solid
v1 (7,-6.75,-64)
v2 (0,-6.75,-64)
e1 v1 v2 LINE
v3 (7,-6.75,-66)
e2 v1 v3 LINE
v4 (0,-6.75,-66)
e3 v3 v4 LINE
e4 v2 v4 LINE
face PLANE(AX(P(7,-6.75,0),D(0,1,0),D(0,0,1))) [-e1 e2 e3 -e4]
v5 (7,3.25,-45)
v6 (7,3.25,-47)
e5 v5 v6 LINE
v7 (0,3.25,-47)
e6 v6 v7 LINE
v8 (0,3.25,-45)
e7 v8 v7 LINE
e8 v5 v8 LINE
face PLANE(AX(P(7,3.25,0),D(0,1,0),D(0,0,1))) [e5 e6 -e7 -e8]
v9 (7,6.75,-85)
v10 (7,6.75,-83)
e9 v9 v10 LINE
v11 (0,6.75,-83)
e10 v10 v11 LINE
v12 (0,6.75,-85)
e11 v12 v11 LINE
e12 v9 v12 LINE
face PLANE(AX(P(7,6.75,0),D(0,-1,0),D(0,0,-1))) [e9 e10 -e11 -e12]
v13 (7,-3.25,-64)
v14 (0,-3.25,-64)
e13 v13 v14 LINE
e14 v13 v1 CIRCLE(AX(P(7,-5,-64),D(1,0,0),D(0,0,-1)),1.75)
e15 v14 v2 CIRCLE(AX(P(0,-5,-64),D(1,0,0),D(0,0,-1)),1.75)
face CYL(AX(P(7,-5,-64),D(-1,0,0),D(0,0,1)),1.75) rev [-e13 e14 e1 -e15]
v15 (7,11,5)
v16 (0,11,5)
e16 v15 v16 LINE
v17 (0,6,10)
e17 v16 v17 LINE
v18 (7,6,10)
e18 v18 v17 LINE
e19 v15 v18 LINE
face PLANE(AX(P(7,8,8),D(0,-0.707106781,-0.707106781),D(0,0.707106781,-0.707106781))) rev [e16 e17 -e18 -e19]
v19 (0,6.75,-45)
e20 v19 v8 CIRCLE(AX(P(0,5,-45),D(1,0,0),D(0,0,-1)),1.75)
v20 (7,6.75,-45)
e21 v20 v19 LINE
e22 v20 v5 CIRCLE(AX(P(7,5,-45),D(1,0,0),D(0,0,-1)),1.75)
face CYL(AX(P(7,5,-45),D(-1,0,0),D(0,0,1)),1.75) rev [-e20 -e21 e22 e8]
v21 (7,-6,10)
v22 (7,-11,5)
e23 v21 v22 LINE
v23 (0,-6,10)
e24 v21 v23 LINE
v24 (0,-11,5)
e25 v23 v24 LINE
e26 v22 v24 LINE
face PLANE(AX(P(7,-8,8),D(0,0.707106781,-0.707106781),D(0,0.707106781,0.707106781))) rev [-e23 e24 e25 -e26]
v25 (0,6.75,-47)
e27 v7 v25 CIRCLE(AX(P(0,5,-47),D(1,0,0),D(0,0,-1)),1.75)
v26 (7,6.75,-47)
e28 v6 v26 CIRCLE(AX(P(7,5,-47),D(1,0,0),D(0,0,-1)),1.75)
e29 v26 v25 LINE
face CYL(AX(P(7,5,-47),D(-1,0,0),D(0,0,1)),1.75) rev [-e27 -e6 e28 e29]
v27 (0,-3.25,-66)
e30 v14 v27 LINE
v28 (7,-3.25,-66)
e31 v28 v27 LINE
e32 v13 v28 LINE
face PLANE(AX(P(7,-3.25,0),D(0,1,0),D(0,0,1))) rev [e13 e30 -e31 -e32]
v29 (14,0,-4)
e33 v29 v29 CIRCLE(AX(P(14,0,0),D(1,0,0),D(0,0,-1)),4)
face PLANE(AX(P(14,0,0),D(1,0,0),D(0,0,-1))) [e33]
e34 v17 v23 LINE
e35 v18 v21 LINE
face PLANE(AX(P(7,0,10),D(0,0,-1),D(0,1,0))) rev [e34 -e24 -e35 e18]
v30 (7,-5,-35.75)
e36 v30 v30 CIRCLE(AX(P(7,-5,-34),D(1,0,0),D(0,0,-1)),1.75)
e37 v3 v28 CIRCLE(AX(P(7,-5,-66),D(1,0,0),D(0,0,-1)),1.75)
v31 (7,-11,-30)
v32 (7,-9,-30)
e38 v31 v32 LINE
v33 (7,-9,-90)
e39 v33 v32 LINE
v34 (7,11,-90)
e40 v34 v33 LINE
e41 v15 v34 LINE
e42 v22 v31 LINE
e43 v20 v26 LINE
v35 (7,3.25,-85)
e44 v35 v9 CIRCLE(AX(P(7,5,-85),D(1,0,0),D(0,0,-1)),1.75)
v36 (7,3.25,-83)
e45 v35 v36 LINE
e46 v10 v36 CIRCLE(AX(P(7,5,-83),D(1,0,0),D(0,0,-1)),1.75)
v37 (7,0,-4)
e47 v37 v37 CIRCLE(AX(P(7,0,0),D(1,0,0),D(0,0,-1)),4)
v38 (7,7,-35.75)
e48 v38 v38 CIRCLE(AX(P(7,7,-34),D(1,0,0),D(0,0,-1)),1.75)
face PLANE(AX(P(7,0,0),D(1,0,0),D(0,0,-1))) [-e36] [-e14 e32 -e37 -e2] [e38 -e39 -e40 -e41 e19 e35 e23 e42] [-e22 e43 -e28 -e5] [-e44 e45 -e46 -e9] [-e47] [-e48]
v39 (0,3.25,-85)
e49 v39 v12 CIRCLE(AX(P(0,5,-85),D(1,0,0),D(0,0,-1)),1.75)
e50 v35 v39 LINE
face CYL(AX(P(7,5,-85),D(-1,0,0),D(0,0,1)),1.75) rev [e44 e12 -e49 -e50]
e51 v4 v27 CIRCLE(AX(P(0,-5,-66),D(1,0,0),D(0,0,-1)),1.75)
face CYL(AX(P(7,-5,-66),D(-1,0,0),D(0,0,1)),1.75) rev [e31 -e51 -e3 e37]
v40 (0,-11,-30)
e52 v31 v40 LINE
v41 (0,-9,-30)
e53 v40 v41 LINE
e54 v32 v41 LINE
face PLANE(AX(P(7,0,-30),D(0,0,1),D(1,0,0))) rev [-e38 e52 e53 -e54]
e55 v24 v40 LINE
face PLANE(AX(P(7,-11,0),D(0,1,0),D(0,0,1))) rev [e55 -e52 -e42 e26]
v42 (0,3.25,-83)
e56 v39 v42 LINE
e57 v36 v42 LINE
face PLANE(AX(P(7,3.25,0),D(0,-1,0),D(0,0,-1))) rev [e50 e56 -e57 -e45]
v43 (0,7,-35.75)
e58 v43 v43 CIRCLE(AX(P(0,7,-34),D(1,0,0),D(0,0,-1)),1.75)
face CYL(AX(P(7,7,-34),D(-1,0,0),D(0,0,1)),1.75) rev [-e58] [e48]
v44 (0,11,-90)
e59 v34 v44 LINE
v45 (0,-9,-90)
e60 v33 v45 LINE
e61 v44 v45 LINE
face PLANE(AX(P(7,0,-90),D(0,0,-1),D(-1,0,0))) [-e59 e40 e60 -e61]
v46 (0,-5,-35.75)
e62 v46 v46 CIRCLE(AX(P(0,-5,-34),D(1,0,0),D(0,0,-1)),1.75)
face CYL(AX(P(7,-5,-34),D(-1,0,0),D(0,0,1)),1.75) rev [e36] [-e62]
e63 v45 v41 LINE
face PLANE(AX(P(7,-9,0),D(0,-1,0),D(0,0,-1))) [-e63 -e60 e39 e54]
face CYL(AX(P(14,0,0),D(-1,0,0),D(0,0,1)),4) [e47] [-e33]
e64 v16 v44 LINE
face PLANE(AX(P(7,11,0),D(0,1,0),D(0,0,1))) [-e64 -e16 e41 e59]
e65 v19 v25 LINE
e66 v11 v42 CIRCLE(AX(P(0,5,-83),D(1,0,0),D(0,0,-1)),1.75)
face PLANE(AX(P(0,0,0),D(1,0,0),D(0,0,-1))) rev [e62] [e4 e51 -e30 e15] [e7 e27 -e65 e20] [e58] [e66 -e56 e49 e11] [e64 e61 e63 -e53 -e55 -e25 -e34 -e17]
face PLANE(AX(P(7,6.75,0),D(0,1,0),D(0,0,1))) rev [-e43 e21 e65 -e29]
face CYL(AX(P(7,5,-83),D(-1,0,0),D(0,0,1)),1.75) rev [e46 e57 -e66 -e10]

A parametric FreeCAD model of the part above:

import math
import FreeCAD as App
import Part
import Sketcher

doc = App.newDocument("Part")
body = doc.addObject("PartDesign::Body", "Body")

# Sketch on YZ plane
sketch1 = body.newObject("Sketcher::SketchObject", "Sketch")
sketch1.AttachmentSupport = (doc.getObject("YZ_Plane"), [""])
sketch1.MapMode = "FlatFace"
sketch1.addGeometry([
    Part.LineSegment(App.Vector(11, 5, 0), App.Vector(6, 10, 0)),  # 0
    Part.LineSegment(App.Vector(6, 10, 0), App.Vector(-6, 10, 0)),  # 1
    Part.LineSegment(App.Vector(-6, 10, 0), App.Vector(-11, 5, 0)),  # 2
    Part.LineSegment(App.Vector(-11, 5, 0), App.Vector(-11, -30, 0)),  # 3
    Part.LineSegment(App.Vector(-11, -30, 0), App.Vector(-9, -30, 0)),  # 4
    Part.LineSegment(App.Vector(-9, -30, 0), App.Vector(-9, -90, 0)),  # 5
    Part.LineSegment(App.Vector(-9, -90, 0), App.Vector(11, -90, 0)),  # 6
    Part.LineSegment(App.Vector(11, -90, 0), App.Vector(11, 5, 0)),  # 7
    Part.Circle(App.Vector(-5, -34, 0), App.Vector(0, 0, 1), 1.8),  # 8
    Part.ArcOfCircle(Part.Circle(App.Vector(-5, -64, 0), App.Vector(0, 0, 1), 1.8), math.radians(0), math.radians(180)),  # 9
    Part.LineSegment(App.Vector(-3.2, -64, 0), App.Vector(-3.2, -66, 0)),  # 10
    Part.ArcOfCircle(Part.Circle(App.Vector(-5, -66, 0), App.Vector(0, 0, 1), 1.8), math.radians(180), math.radians(360)),  # 11
    Part.LineSegment(App.Vector(-6.8, -66, 0), App.Vector(-6.8, -64, 0)),  # 12
    Part.Circle(App.Vector(7, -34, 0), App.Vector(0, 0, 1), 1.8),  # 13
    Part.ArcOfCircle(Part.Circle(App.Vector(5, -45, 0), App.Vector(0, 0, 1), 1.8), math.radians(0), math.radians(180)),  # 14
    Part.LineSegment(App.Vector(6.8, -45, 0), App.Vector(6.8, -47, 0)),  # 15
    Part.ArcOfCircle(Part.Circle(App.Vector(5, -47, 0), App.Vector(0, 0, 1), 1.8), math.radians(180), math.radians(360)),  # 16
    Part.LineSegment(App.Vector(3.2, -47, 0), App.Vector(3.2, -45, 0)),  # 17
    Part.ArcOfCircle(Part.Circle(App.Vector(5, -85, 0), App.Vector(0, 0, 1), 1.8), math.radians(180), math.radians(360)),  # 18
    Part.LineSegment(App.Vector(3.2, -85, 0), App.Vector(3.2, -83, 0)),  # 19
    Part.ArcOfCircle(Part.Circle(App.Vector(5, -83, 0), App.Vector(0, 0, 1), 1.8), math.radians(0), math.radians(180)),  # 20
    Part.LineSegment(App.Vector(6.8, -83, 0), App.Vector(6.8, -85, 0)),  # 21
], False)
sketch1.addConstraint([
    Sketcher.Constraint("Coincident", 0, 2, 1, 1),
    Sketcher.Constraint("Coincident", 1, 2, 2, 1),
    Sketcher.Constraint("Coincident", 2, 2, 3, 1),
    Sketcher.Constraint("Coincident", 3, 2, 4, 1),
    Sketcher.Constraint("Coincident", 4, 2, 5, 1),
    Sketcher.Constraint("Coincident", 5, 2, 6, 1),
    Sketcher.Constraint("Coincident", 6, 2, 7, 1),
    Sketcher.Constraint("Coincident", 7, 2, 0, 1),
    Sketcher.Constraint("Tangent", 9, 1, 10, 1),
    Sketcher.Constraint("Tangent", 10, 2, 11, 2),
    Sketcher.Constraint("Tangent", 11, 1, 12, 1),
    Sketcher.Constraint("Tangent", 12, 2, 9, 2),
    Sketcher.Constraint("Tangent", 14, 1, 15, 1),
    Sketcher.Constraint("Tangent", 15, 2, 16, 2),
    Sketcher.Constraint("Tangent", 16, 1, 17, 1),
    Sketcher.Constraint("Tangent", 17, 2, 14, 2),
    Sketcher.Constraint("Tangent", 18, 1, 19, 1),
    Sketcher.Constraint("Tangent", 19, 2, 20, 2),
    Sketcher.Constraint("Tangent", 20, 1, 21, 1),
    Sketcher.Constraint("Tangent", 21, 2, 18, 2),
    Sketcher.Constraint("Horizontal", 1),
    Sketcher.Constraint("Vertical", 3),
    Sketcher.Constraint("Horizontal", 4),
    Sketcher.Constraint("Vertical", 5),
    Sketcher.Constraint("Horizontal", 6),
    Sketcher.Constraint("Vertical", 7),
    Sketcher.Constraint("Vertical", 10),
    Sketcher.Constraint("Vertical", 12),
    Sketcher.Constraint("Vertical", 15),
    Sketcher.Constraint("Vertical", 17),
    Sketcher.Constraint("Vertical", 19),
    Sketcher.Constraint("Vertical", 21),
    Sketcher.Constraint("Equal", 8, 9),
    Sketcher.Constraint("Equal", 11, 13),
    Sketcher.Constraint("Equal", 13, 14),
    Sketcher.Constraint("Equal", 16, 18),
    Sketcher.Constraint("Symmetric", 2, 2, 7, 2, -2),
    Sketcher.Constraint("Perpendicular", 0, 2),
    Sketcher.Constraint("Horizontal", 8, 3, 13, 3),
    Sketcher.Constraint("Vertical", 8, 3, 9, 3),
    Sketcher.Constraint("Vertical", 16, 3, 18, 3),
    Sketcher.Constraint("Equal", 4, 10),
    Sketcher.Constraint("Equal", 12, 15),
    Sketcher.Constraint("Equal", 17, 19),
    Sketcher.Constraint("Equal", 0, 2),
    Sketcher.Constraint("Diameter", 8, 3.5),
    Sketcher.Constraint("DistanceX", 1, 2, 1, 1, 12.0),
    Sketcher.Constraint("DistanceX", 4, 1, 4, 2, 2.0),
    Sketcher.Constraint("DistanceX", 6, 1, 6, 2, 20.0),
    Sketcher.Constraint("DistanceY", 3, 2, 3, 1, 35.0),
    Sketcher.Constraint("DistanceY", 5, 2, 5, 1, 60.0),
    Sketcher.Constraint("DistanceX", 8, 3, -1, 1, 5.0),
    Sketcher.Constraint("DistanceY", 8, 3, -1, 1, 34.0),
    Sketcher.Constraint("DistanceY", 9, 3, -1, 1, 64.0),
    Sketcher.Constraint("DistanceX", -1, 1, 13, 3, 7.0),
    Sketcher.Constraint("DistanceX", -1, 1, 14, 3, 5.0),
    Sketcher.Constraint("DistanceY", 14, 3, -1, 1, 45.0),
    Sketcher.Constraint("DistanceY", 18, 3, -1, 1, 85.0),
    Sketcher.Constraint("DistanceY", -1, 1, 0, 2, 10.0),
])
pad1 = body.newObject("PartDesign::Pad", "Pad")
pad1.Profile = sketch1
pad1.Length = 7

# Sketch on YZ plane
sketch2 = body.newObject("Sketcher::SketchObject", "Sketch001")
sketch2.AttachmentSupport = (doc.getObject("YZ_Plane"), [""])
sketch2.MapMode = "FlatFace"
sketch2.AttachmentOffset = App.Placement(App.Vector(0, 0, 7), App.Rotation())
sketch2.addGeometry(Part.Circle(App.Vector(0, 0, 0), App.Vector(0, 0, 1), 4), False)
sketch2.addConstraint([
    Sketcher.Constraint("Coincident", 0, 3, -1, 1),
    Sketcher.Constraint("Diameter", 0, 8.0),
])
pad2 = body.newObject("PartDesign::Pad", "Pad001")
pad2.Profile = sketch2
pad2.Length = 7

doc.recompute()
